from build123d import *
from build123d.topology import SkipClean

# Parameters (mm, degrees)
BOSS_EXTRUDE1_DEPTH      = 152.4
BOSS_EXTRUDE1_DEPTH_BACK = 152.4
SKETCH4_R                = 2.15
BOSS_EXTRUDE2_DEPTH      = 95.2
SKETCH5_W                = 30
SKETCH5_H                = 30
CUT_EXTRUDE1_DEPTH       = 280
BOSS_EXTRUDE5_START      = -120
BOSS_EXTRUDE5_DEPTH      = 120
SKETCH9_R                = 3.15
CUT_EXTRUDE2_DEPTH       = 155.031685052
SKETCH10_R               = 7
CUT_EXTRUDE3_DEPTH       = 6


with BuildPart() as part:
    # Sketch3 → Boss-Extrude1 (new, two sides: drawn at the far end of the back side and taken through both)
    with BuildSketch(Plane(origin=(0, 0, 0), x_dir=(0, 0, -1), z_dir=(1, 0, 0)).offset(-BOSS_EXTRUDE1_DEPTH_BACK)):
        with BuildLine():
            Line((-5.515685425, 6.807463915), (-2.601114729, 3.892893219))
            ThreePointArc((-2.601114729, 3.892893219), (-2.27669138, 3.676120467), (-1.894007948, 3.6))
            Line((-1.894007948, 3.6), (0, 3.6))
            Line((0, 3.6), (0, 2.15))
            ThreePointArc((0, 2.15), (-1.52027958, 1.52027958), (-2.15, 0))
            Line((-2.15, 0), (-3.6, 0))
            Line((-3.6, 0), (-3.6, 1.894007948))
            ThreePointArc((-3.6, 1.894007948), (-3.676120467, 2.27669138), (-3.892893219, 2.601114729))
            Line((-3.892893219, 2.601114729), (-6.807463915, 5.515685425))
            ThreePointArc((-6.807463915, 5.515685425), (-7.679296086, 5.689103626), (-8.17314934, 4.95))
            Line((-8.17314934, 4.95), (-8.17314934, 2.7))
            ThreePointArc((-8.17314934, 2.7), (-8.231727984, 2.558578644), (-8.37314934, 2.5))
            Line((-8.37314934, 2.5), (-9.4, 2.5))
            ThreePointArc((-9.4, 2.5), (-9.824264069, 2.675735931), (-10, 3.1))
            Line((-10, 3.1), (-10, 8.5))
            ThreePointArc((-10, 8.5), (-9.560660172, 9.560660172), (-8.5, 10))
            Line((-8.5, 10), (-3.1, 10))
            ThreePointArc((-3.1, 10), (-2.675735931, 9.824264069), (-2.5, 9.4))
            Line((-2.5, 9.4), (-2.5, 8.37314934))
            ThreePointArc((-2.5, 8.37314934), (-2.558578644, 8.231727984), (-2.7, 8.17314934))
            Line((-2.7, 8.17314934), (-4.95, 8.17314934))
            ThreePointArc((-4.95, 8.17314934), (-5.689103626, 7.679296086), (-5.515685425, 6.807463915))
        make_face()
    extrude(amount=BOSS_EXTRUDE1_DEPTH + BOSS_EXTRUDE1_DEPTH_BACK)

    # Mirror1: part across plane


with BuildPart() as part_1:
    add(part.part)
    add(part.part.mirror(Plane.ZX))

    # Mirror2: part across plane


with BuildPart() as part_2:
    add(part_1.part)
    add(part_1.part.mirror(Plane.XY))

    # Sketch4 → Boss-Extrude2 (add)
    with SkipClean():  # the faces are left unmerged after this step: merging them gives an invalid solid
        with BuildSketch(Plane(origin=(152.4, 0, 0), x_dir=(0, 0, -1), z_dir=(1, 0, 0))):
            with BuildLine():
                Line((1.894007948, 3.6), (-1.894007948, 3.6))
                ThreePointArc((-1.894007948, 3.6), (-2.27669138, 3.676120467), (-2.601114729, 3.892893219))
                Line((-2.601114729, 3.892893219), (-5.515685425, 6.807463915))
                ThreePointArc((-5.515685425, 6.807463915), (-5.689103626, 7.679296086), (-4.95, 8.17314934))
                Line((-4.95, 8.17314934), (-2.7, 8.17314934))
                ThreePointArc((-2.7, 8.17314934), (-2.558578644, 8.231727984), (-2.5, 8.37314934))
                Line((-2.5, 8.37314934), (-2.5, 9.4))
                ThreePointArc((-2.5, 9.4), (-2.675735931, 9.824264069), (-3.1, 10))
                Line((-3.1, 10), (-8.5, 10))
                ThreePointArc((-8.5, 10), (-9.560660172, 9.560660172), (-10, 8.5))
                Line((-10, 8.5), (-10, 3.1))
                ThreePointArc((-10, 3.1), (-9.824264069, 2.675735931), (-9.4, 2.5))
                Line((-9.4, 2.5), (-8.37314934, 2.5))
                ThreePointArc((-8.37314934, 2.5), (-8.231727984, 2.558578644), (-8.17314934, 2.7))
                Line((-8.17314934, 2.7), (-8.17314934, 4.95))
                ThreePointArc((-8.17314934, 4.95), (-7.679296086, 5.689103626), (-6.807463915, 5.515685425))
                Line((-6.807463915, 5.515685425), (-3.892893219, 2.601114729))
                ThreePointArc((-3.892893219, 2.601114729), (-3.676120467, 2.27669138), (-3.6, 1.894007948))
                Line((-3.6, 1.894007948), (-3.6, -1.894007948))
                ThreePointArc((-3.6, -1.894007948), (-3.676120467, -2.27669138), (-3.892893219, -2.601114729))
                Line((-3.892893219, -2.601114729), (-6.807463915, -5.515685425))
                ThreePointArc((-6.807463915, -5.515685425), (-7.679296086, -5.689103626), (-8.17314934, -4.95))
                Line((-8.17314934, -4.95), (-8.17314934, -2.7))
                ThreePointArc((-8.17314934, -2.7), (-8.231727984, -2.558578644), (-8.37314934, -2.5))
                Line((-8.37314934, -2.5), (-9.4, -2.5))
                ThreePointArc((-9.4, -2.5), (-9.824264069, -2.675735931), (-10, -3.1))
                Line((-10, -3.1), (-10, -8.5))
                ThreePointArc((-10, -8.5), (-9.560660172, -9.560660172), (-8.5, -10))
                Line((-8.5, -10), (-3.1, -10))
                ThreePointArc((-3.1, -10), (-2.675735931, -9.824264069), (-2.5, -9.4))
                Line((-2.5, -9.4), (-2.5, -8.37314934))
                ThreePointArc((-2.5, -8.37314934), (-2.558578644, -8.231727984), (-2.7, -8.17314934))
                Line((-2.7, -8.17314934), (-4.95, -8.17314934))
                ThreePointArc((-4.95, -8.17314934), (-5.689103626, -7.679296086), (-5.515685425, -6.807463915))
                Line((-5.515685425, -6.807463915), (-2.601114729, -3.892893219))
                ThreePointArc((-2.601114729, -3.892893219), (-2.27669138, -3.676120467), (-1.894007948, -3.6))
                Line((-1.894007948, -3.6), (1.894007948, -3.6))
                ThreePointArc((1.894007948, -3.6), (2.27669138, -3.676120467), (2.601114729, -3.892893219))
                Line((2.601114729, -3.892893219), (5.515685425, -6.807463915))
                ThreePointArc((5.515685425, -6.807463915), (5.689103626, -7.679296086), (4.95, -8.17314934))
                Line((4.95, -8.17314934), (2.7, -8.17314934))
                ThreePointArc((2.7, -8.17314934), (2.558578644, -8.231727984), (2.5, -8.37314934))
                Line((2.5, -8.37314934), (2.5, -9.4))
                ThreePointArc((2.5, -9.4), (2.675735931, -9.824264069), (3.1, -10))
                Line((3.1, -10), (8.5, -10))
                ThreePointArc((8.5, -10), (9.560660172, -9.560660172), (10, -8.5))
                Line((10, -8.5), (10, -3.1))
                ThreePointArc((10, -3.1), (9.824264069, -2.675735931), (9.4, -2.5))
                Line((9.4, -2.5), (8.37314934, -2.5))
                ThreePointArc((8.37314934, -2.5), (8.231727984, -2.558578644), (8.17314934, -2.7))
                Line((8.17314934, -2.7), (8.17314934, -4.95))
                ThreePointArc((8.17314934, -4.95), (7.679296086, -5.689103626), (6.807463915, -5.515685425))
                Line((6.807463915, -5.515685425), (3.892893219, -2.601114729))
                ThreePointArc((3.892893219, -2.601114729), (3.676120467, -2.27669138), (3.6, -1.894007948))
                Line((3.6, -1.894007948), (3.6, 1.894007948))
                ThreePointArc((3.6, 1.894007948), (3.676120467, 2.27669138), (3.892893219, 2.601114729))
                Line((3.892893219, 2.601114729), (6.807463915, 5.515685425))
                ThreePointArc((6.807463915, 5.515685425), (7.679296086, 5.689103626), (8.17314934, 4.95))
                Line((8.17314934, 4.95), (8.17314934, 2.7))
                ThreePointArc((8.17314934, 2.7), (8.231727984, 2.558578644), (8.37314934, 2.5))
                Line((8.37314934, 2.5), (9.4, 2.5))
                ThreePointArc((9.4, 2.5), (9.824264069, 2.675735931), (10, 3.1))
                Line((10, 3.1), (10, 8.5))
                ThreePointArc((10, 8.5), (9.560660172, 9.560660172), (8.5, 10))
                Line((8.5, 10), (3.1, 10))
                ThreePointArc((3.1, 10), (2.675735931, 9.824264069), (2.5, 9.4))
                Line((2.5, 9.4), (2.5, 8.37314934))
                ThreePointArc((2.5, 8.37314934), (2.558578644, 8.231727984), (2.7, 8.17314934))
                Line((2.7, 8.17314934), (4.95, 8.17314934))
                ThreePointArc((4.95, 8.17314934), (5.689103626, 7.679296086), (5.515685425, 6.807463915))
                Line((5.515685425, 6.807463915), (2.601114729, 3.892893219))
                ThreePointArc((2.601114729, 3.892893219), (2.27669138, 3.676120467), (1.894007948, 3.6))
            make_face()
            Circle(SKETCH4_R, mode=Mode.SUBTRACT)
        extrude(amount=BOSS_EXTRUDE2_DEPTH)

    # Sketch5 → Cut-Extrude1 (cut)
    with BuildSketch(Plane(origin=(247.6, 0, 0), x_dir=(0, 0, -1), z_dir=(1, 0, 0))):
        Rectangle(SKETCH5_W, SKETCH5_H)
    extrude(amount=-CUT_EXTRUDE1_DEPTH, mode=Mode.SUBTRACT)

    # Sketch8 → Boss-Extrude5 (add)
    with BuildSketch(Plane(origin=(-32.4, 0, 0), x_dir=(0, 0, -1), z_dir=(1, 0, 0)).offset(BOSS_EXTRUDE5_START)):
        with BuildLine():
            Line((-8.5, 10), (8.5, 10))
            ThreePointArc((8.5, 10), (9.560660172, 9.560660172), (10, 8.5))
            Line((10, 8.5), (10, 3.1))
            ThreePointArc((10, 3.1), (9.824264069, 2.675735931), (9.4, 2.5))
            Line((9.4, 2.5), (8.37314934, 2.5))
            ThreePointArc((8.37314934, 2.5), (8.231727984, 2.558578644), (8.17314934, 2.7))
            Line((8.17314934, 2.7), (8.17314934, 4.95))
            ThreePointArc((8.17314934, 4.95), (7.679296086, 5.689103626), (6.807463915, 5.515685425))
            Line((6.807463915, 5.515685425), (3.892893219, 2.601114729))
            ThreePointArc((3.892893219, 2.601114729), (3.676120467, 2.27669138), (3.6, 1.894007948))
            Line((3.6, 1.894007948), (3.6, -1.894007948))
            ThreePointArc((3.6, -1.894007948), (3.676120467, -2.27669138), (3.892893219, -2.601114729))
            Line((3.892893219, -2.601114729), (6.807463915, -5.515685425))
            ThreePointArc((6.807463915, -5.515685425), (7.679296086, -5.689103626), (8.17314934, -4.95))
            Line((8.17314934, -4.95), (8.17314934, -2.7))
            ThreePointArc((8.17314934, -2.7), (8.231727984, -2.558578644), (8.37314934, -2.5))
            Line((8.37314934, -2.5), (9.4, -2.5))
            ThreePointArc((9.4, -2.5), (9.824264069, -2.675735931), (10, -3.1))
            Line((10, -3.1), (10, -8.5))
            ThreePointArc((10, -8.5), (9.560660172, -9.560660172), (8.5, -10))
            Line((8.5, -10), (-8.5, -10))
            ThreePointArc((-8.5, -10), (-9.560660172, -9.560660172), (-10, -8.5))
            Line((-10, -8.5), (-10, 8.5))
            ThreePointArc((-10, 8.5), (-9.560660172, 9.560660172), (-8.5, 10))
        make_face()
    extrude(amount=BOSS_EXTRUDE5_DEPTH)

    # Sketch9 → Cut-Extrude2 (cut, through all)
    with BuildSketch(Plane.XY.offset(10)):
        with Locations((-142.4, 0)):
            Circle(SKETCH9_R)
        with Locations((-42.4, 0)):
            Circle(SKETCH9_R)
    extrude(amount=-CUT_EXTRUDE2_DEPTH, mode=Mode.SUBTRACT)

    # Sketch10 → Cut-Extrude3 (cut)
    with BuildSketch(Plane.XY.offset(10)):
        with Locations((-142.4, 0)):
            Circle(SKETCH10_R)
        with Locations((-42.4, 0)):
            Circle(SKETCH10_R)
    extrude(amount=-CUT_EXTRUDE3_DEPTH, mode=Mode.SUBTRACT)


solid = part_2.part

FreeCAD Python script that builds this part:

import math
import FreeCAD as App
import Part
import Sketcher

V = App.Vector

doc = App.newDocument("Part")
body = doc.addObject("PartDesign::Body", "Body")

# Sketch on YZ plane
sketch1 = doc.addObject("Sketcher::SketchObject", "Sketch")
body.addObject(sketch1)
sketch1.AttachmentSupport = (doc.YZ_Plane, [""])
sketch1.MapMode = "FlatFace"
sketch1.addGeometry(Part.LineSegment(V(3.89, 2.6, 0), V(6.81, 5.52, 0)), False)
sketch1.addGeometry(Part.ArcOfCircle(Part.Circle(V(7.37, 4.95, 0), V(0, 0, 1), 0.8), math.radians(0), math.radians(135)), False)
sketch1.addGeometry(Part.LineSegment(V(8.17, 4.95, 0), V(8.17, 2.7, 0)), False)
sketch1.addGeometry(Part.ArcOfCircle(Part.Circle(V(8.37, 2.7, 0), V(0, 0, 1), 0.2), math.radians(-180), math.radians(-90)), False)
sketch1.addGeometry(Part.LineSegment(V(8.37, 2.5, 0), V(9.4, 2.5, 0)), False)
sketch1.addGeometry(Part.ArcOfCircle(Part.Circle(V(9.4, 3.1, 0), V(0, 0, 1), 0.6), math.radians(-90), math.radians(0)), False)
sketch1.addGeometry(Part.LineSegment(V(10, 3.1, 0), V(10, 8.5, 0)), False)
sketch1.addGeometry(Part.ArcOfCircle(Part.Circle(V(8.5, 8.5, 0), V(0, 0, 1), 1.5), math.radians(0), math.radians(90)), False)
sketch1.addGeometry(Part.LineSegment(V(8.5, 10, 0), V(3.1, 10, 0)), False)
sketch1.addGeometry(Part.ArcOfCircle(Part.Circle(V(3.1, 9.4, 0), V(0, 0, 1), 0.6), math.radians(90), math.radians(180)), False)
sketch1.addGeometry(Part.LineSegment(V(2.5, 9.4, 0), V(2.5, 8.37, 0)), False)
sketch1.addGeometry(Part.ArcOfCircle(Part.Circle(V(2.7, 8.37, 0), V(0, 0, 1), 0.2), math.radians(-180), math.radians(-90)), False)
sketch1.addGeometry(Part.LineSegment(V(2.7, 8.17, 0), V(4.95, 8.17, 0)), False)
sketch1.addGeometry(Part.ArcOfCircle(Part.Circle(V(4.95, 7.37, 0), V(0, 0, 1), 0.8), math.radians(-45), math.radians(90)), False)
sketch1.addGeometry(Part.LineSegment(V(5.52, 6.81, 0), V(2.6, 3.89, 0)), False)
sketch1.addGeometry(Part.ArcOfCircle(Part.Circle(V(1.89, 4.6, 0), V(0, 0, 1), 1), math.radians(-90), math.radians(-45)), False)
sketch1.addGeometry(Part.LineSegment(V(1.89, 3.6, 0), V(0, 3.6, 0)), False)
sketch1.addGeometry(Part.LineSegment(V(0, 3.6, 0), V(0, 2.15, 0)), False)
sketch1.addGeometry(Part.ArcOfCircle(Part.Circle(V(0, 0, 0), V(0, 0, 1), 2.15), math.radians(0), math.radians(90)), False)
sketch1.addGeometry(Part.LineSegment(V(2.15, 0, 0), V(3.6, 0, 0)), False)
sketch1.addGeometry(Part.LineSegment(V(3.6, 0, 0), V(3.6, 1.89, 0)), False)
sketch1.addGeometry(Part.ArcOfCircle(Part.Circle(V(4.6, 1.89, 0), V(0, 0, 1), 1), math.radians(135), math.radians(180)), False)
sketch1.addConstraint(Sketcher.Constraint("Tangent", 0, 2, 1, 2))
sketch1.addConstraint(Sketcher.Constraint("Tangent", 1, 1, 2, 1))
sketch1.addConstraint(Sketcher.Constraint("Tangent", 2, 2, 3, 1))
sketch1.addConstraint(Sketcher.Constraint("Tangent", 3, 2, 4, 1))
sketch1.addConstraint(Sketcher.Constraint("Tangent", 4, 2, 5, 1))
sketch1.addConstraint(Sketcher.Constraint("Tangent", 5, 2, 6, 1))
sketch1.addConstraint(Sketcher.Constraint("Tangent", 6, 2, 7, 1))
sketch1.addConstraint(Sketcher.Constraint("Tangent", 7, 2, 8, 1))
sketch1.addConstraint(Sketcher.Constraint("Tangent", 8, 2, 9, 1))
sketch1.addConstraint(Sketcher.Constraint("Tangent", 9, 2, 10, 1))
sketch1.addConstraint(Sketcher.Constraint("Tangent", 10, 2, 11, 1))
sketch1.addConstraint(Sketcher.Constraint("Tangent", 11, 2, 12, 1))
sketch1.addConstraint(Sketcher.Constraint("Tangent", 12, 2, 13, 2))
sketch1.addConstraint(Sketcher.Constraint("Tangent", 13, 1, 14, 1))
sketch1.addConstraint(Sketcher.Constraint("Tangent", 14, 2, 15, 2))
sketch1.addConstraint(Sketcher.Constraint("Tangent", 15, 1, 16, 1))
sketch1.addConstraint(Sketcher.Constraint("Coincident", 16, 2, 17, 1))
sketch1.addConstraint(Sketcher.Constraint("Coincident", 17, 2, 18, 2))
sketch1.addConstraint(Sketcher.Constraint("Coincident", 18, 1, 19, 1))
sketch1.addConstraint(Sketcher.Constraint("Coincident", 19, 2, 20, 1))
sketch1.addConstraint(Sketcher.Constraint("Tangent", 20, 2, 21, 2))
sketch1.addConstraint(Sketcher.Constraint("Tangent", 21, 1, 0, 1))
sketch1.addConstraint(Sketcher.Constraint("Vertical", 2))
sketch1.addConstraint(Sketcher.Constraint("Horizontal", 4))
sketch1.addConstraint(Sketcher.Constraint("Vertical", 6))
sketch1.addConstraint(Sketcher.Constraint("Horizontal", 8))
sketch1.addConstraint(Sketcher.Constraint("Vertical", 10))
sketch1.addConstraint(Sketcher.Constraint("Horizontal", 12))
sketch1.addConstraint(Sketcher.Constraint("Horizontal", 16))
sketch1.addConstraint(Sketcher.Constraint("Vertical", 17))
sketch1.addConstraint(Sketcher.Constraint("Horizontal", 19))
sketch1.addConstraint(Sketcher.Constraint("Vertical", 20))
sketch1.addConstraint(Sketcher.Constraint("Coincident", 18, 3, -1, 1))
sketch1.addConstraint(Sketcher.Constraint("Equal", 5, 9))
sketch1.addConstraint(Sketcher.Constraint("Equal", 3, 11))
sketch1.addConstraint(Sketcher.Constraint("Equal", 1, 13))
sketch1.addConstraint(Sketcher.Constraint("Equal", 15, 21))
sketch1.addConstraint(Sketcher.Constraint("PointOnObject", 16, 2, -2))
sketch1.addConstraint(Sketcher.Constraint("PointOnObject", 18, 1, -1))
sketch1.addConstraint(Sketcher.Constraint("Parallel", 0, 14))
sketch1.addConstraint(Sketcher.Constraint("Equal", 12, 2))
sketch1.addConstraint(Sketcher.Constraint("Equal", 8, 6))
sketch1.addConstraint(Sketcher.Constraint("Equal", 4, 10))
sketch1.addConstraint(Sketcher.Constraint("Equal", 19, 17))
sketch1.addConstraint(Sketcher.Constraint("Equal", 16, 20))
sketch1.addConstraint(Sketcher.Constraint("Equal", 0, 14))
sketch1.addConstraint(Sketcher.Constraint("Radius", 15, 1.0))
sketch1.addConstraint(Sketcher.Constraint("Radius", 1, 0.8))
sketch1.addConstraint(Sketcher.Constraint("Radius", 3, 0.2))
sketch1.addConstraint(Sketcher.Constraint("Radius", 5, 0.6))
sketch1.addConstraint(Sketcher.Constraint("Radius", 7, 1.5))
sketch1.addConstraint(Sketcher.Constraint("Radius", 18, 2.15))
sketch1.addConstraint(Sketcher.Constraint("DistanceX", 8, 2, 8, 1, 5.4))
sketch1.addConstraint(Sketcher.Constraint("DistanceX", -1, 1, 5, 2, 10.0))
sketch1.addConstraint(Sketcher.Constraint("DistanceX", 12, 1, 12, 2, 2.25))
sketch1.addConstraint(Sketcher.Constraint("DistanceX", 19, 1, 19, 2, 1.45))
sketch1.addConstraint(Sketcher.Constraint("DistanceX", 4, 1, 4, 2, 1.026851))
pad1 = doc.addObject("PartDesign::Pad", "Pad")
body.addObject(pad1)
pad1.Profile = sketch1
pad1.Type = "TwoLengths"
pad1.Length = 152.4
pad1.Length2 = 152.4
body2 = doc.addObject("PartDesign::Body", "Body001")
doc.recompute()

body2.BaseFeature = body
doc.recompute()

mirroring = doc.addObject("Part::Mirroring", "Mirroring")
mirroring.Source = body
mirroring.Base = V(0, 0, 0)
mirroring.Normal = V(0, 1, 0)
body3 = doc.addObject("PartDesign::Body", "Body002")
body3.BaseFeature = mirroring
boolean = doc.addObject("PartDesign::Boolean", "Boolean")
body2.addObject(boolean)
boolean.Type = "Fuse"
boolean.addObjects([body3])
doc.recompute()
body4 = doc.addObject("PartDesign::Body", "Body003")
doc.recompute()

body4.BaseFeature = body2
doc.recompute()

mirroring2 = doc.addObject("Part::Mirroring", "Mirroring001")
mirroring2.Source = body2
mirroring2.Base = V(0, 0, 0)
mirroring2.Normal = V(0, 0, 1)
body5 = doc.addObject("PartDesign::Body", "Body004")
body5.BaseFeature = mirroring2
boolean2 = doc.addObject("PartDesign::Boolean", "Boolean001")
body4.addObject(boolean2)
boolean2.Type = "Fuse"
boolean2.addObjects([body5])
doc.recompute()

# Sketch on YZ plane
sketch2 = doc.addObject("Sketcher::SketchObject", "Sketch001")
body4.addObject(sketch2)
sketch2.AttachmentSupport = (doc.getObject("YZ_Plane003"), [""])
sketch2.MapMode = "FlatFace"
sketch2.AttachmentOffset = App.Placement(V(0, 0, 152.4), App.Rotation())
sketch2.addGeometry(Part.LineSegment(V(3.6, -1.89, 0), V(3.6, 1.89, 0)), False)
sketch2.addGeometry(Part.ArcOfCircle(Part.Circle(V(4.6, 1.89, 0), V(0, 0, 1), 1), math.radians(135), math.radians(180)), False)
sketch2.addGeometry(Part.LineSegment(V(3.89, 2.6, 0), V(6.81, 5.52, 0)), False)
sketch2.addGeometry(Part.ArcOfCircle(Part.Circle(V(7.37, 4.95, 0), V(0, 0, 1), 0.8), math.radians(0), math.radians(135)), False)
sketch2.addGeometry(Part.LineSegment(V(8.17, 4.95, 0), V(8.17, 2.7, 0)), False)
sketch2.addGeometry(Part.ArcOfCircle(Part.Circle(V(8.37, 2.7, 0), V(0, 0, 1), 0.2), math.radians(-180), math.radians(-90)), False)
sketch2.addGeometry(Part.LineSegment(V(8.37, 2.5, 0), V(9.4, 2.5, 0)), False)
sketch2.addGeometry(Part.ArcOfCircle(Part.Circle(V(9.4, 3.1, 0), V(0, 0, 1), 0.6), math.radians(-90), math.radians(0)), False)
sketch2.addGeometry(Part.LineSegment(V(10, 3.1, 0), V(10, 8.5, 0)), False)
sketch2.addGeometry(Part.ArcOfCircle(Part.Circle(V(8.5, 8.5, 0), V(0, 0, 1), 1.5), math.radians(0), math.radians(90)), False)
sketch2.addGeometry(Part.LineSegment(V(8.5, 10, 0), V(3.1, 10, 0)), False)
sketch2.addGeometry(Part.ArcOfCircle(Part.Circle(V(3.1, 9.4, 0), V(0, 0, 1), 0.6), math.radians(90), math.radians(180)), False)
sketch2.addGeometry(Part.LineSegment(V(2.5, 9.4, 0), V(2.5, 8.37, 0)), False)
sketch2.addGeometry(Part.ArcOfCircle(Part.Circle(V(2.7, 8.37, 0), V(0, 0, 1), 0.2), math.radians(-180), math.radians(-90)), False)
sketch2.addGeometry(Part.LineSegment(V(2.7, 8.17, 0), V(4.95, 8.17, 0)), False)
sketch2.addGeometry(Part.ArcOfCircle(Part.Circle(V(4.95, 7.37, 0), V(0, 0, 1), 0.8), math.radians(-45), math.radians(90)), False)
sketch2.addGeometry(Part.LineSegment(V(5.52, 6.81, 0), V(2.6, 3.89, 0)), False)
sketch2.addGeometry(Part.ArcOfCircle(Part.Circle(V(1.89, 4.6, 0), V(0, 0, 1), 1), math.radians(-90), math.radians(-45)), False)
sketch2.addGeometry(Part.LineSegment(V(1.89, 3.6, 0), V(-1.89, 3.6, 0)), False)
sketch2.addGeometry(Part.ArcOfCircle(Part.Circle(V(-1.89, 4.6, 0), V(0, 0, 1), 1), math.radians(-135), math.radians(-90)), False)
sketch2.addGeometry(Part.LineSegment(V(-2.6, 3.89, 0), V(-5.52, 6.81, 0)), False)
sketch2.addGeometry(Part.ArcOfCircle(Part.Circle(V(-4.95, 7.37, 0), V(0, 0, 1), 0.8), math.radians(90), math.radians(225)), False)
sketch2.addGeometry(Part.LineSegment(V(-4.95, 8.17, 0), V(-2.7, 8.17, 0)), False)
sketch2.addGeometry(Part.ArcOfCircle(Part.Circle(V(-2.7, 8.37, 0), V(0, 0, 1), 0.2), math.radians(-90), math.radians(0)), False)
sketch2.addGeometry(Part.LineSegment(V(-2.5, 8.37, 0), V(-2.5, 9.4, 0)), False)
sketch2.addGeometry(Part.ArcOfCircle(Part.Circle(V(-3.1, 9.4, 0), V(0, 0, 1), 0.6), math.radians(0), math.radians(90)), False)
sketch2.addGeometry(Part.LineSegment(V(-3.1, 10, 0), V(-8.5, 10, 0)), False)
sketch2.addGeometry(Part.ArcOfCircle(Part.Circle(V(-8.5, 8.5, 0), V(0, 0, 1), 1.5), math.radians(90), math.radians(180)), False)
sketch2.addGeometry(Part.LineSegment(V(-10, 8.5, 0), V(-10, 3.1, 0)), False)
sketch2.addGeometry(Part.ArcOfCircle(Part.Circle(V(-9.4, 3.1, 0), V(0, 0, 1), 0.6), math.radians(180), math.radians(270)), False)
sketch2.addGeometry(Part.LineSegment(V(-9.4, 2.5, 0), V(-8.37, 2.5, 0)), False)
sketch2.addGeometry(Part.ArcOfCircle(Part.Circle(V(-8.37, 2.7, 0), V(0, 0, 1), 0.2), math.radians(-90), math.radians(0)), False)
sketch2.addGeometry(Part.LineSegment(V(-8.17, 2.7, 0), V(-8.17, 4.95, 0)), False)
sketch2.addGeometry(Part.ArcOfCircle(Part.Circle(V(-7.37, 4.95, 0), V(0, 0, 1), 0.8), math.radians(45), math.radians(180)), False)
sketch2.addGeometry(Part.LineSegment(V(-6.81, 5.52, 0), V(-3.89, 2.6, 0)), False)
sketch2.addGeometry(Part.ArcOfCircle(Part.Circle(V(-4.6, 1.89, 0), V(0, 0, 1), 1), math.radians(0), math.radians(45)), False)
sketch2.addGeometry(Part.LineSegment(V(-3.6, 1.89, 0), V(-3.6, -1.89, 0)), False)
sketch2.addGeometry(Part.ArcOfCircle(Part.Circle(V(-4.6, -1.89, 0), V(0, 0, 1), 1), math.radians(-45), math.radians(0)), False)
sketch2.addGeometry(Part.LineSegment(V(-3.89, -2.6, 0), V(-6.81, -5.52, 0)), False)
sketch2.addGeometry(Part.ArcOfCircle(Part.Circle(V(-7.37, -4.95, 0), V(0, 0, 1), 0.8), math.radians(180), math.radians(315)), False)
sketch2.addGeometry(Part.LineSegment(V(-8.17, -4.95, 0), V(-8.17, -2.7, 0)), False)
sketch2.addGeometry(Part.ArcOfCircle(Part.Circle(V(-8.37, -2.7, 0), V(0, 0, 1), 0.2), math.radians(0), math.radians(90)), False)
sketch2.addGeometry(Part.LineSegment(V(-8.37, -2.5, 0), V(-9.4, -2.5, 0)), False)
sketch2.addGeometry(Part.ArcOfCircle(Part.Circle(V(-9.4, -3.1, 0), V(0, 0, 1), 0.6), math.radians(90), math.radians(180)), False)
sketch2.addGeometry(Part.LineSegment(V(-10, -3.1, 0), V(-10, -8.5, 0)), False)
sketch2.addGeometry(Part.ArcOfCircle(Part.Circle(V(-8.5, -8.5, 0), V(0, 0, 1), 1.5), math.radians(180), math.radians(270)), False)
sketch2.addGeometry(Part.LineSegment(V(-8.5, -10, 0), V(-3.1, -10, 0)), False)
sketch2.addGeometry(Part.ArcOfCircle(Part.Circle(V(-3.1, -9.4, 0), V(0, 0, 1), 0.6), math.radians(-90), math.radians(0)), False)
sketch2.addGeometry(Part.LineSegment(V(-2.5, -9.4, 0), V(-2.5, -8.37, 0)), False)
sketch2.addGeometry(Part.ArcOfCircle(Part.Circle(V(-2.7, -8.37, 0), V(0, 0, 1), 0.2), math.radians(0), math.radians(90)), False)
sketch2.addGeometry(Part.LineSegment(V(-2.7, -8.17, 0), V(-4.95, -8.17, 0)), False)
sketch2.addGeometry(Part.ArcOfCircle(Part.Circle(V(-4.95, -7.37, 0), V(0, 0, 1), 0.8), math.radians(135), math.radians(270)), False)
sketch2.addGeometry(Part.LineSegment(V(-5.52, -6.81, 0), V(-2.6, -3.89, 0)), False)
sketch2.addGeometry(Part.ArcOfCircle(Part.Circle(V(-1.89, -4.6, 0), V(0, 0, 1), 1), math.radians(90), math.radians(135)), False)
sketch2.addGeometry(Part.LineSegment(V(-1.89, -3.6, 0), V(1.89, -3.6, 0)), False)
sketch2.addGeometry(Part.ArcOfCircle(Part.Circle(V(1.89, -4.6, 0), V(0, 0, 1), 1), math.radians(45), math.radians(90)), False)
sketch2.addGeometry(Part.LineSegment(V(2.6, -3.89, 0), V(5.52, -6.81, 0)), False)
sketch2.addGeometry(Part.ArcOfCircle(Part.Circle(V(4.95, -7.37, 0), V(0, 0, 1), 0.8), math.radians(-90), math.radians(45)), False)
sketch2.addGeometry(Part.LineSegment(V(4.95, -8.17, 0), V(2.7, -8.17, 0)), False)
sketch2.addGeometry(Part.ArcOfCircle(Part.Circle(V(2.7, -8.37, 0), V(0, 0, 1), 0.2), math.radians(90), math.radians(180)), False)
sketch2.addGeometry(Part.LineSegment(V(2.5, -8.37, 0), V(2.5, -9.4, 0)), False)
sketch2.addGeometry(Part.ArcOfCircle(Part.Circle(V(3.1, -9.4, 0), V(0, 0, 1), 0.6), math.radians(180), math.radians(270)), False)
sketch2.addGeometry(Part.LineSegment(V(3.1, -10, 0), V(8.5, -10, 0)), False)
sketch2.addGeometry(Part.ArcOfCircle(Part.Circle(V(8.5, -8.5, 0), V(0, 0, 1), 1.5), math.radians(-90), math.radians(0)), False)
sketch2.addGeometry(Part.LineSegment(V(10, -8.5, 0), V(10, -3.1, 0)), False)
sketch2.addGeometry(Part.ArcOfCircle(Part.Circle(V(9.4, -3.1, 0), V(0, 0, 1), 0.6), math.radians(0), math.radians(90)), False)
sketch2.addGeometry(Part.LineSegment(V(9.4, -2.5, 0), V(8.37, -2.5, 0)), False)
sketch2.addGeometry(Part.ArcOfCircle(Part.Circle(V(8.37, -2.7, 0), V(0, 0, 1), 0.2), math.radians(90), math.radians(180)), False)
sketch2.addGeometry(Part.LineSegment(V(8.17, -2.7, 0), V(8.17, -4.95, 0)), False)
sketch2.addGeometry(Part.ArcOfCircle(Part.Circle(V(7.37, -4.95, 0), V(0, 0, 1), 0.8), math.radians(-135), math.radians(0)), False)
sketch2.addGeometry(Part.LineSegment(V(6.81, -5.52, 0), V(3.89, -2.6, 0)), False)
sketch2.addGeometry(Part.ArcOfCircle(Part.Circle(V(4.6, -1.89, 0), V(0, 0, 1), 1), math.radians(180), math.radians(225)), False)
sketch2.addGeometry(Part.Circle(V(0, 0, 0), V(0, 0, 1), 2.15), False)
sketch2.addConstraint(Sketcher.Constraint("Tangent", 0, 2, 1, 2))
sketch2.addConstraint(Sketcher.Constraint("Tangent", 1, 1, 2, 1))
sketch2.addConstraint(Sketcher.Constraint("Tangent", 2, 2, 3, 2))
sketch2.addConstraint(Sketcher.Constraint("Tangent", 3, 1, 4, 1))
sketch2.addConstraint(Sketcher.Constraint("Tangent", 4, 2, 5, 1))
sketch2.addConstraint(Sketcher.Constraint("Tangent", 5, 2, 6, 1))
sketch2.addConstraint(Sketcher.Constraint("Tangent", 6, 2, 7, 1))
sketch2.addConstraint(Sketcher.Constraint("Tangent", 7, 2, 8, 1))
sketch2.addConstraint(Sketcher.Constraint("Tangent", 8, 2, 9, 1))
sketch2.addConstraint(Sketcher.Constraint("Tangent", 9, 2, 10, 1))
sketch2.addConstraint(Sketcher.Constraint("Tangent", 10, 2, 11, 1))
sketch2.addConstraint(Sketcher.Constraint("Tangent", 11, 2, 12, 1))
sketch2.addConstraint(Sketcher.Constraint("Tangent", 12, 2, 13, 1))
sketch2.addConstraint(Sketcher.Constraint("Tangent", 13, 2, 14, 1))
sketch2.addConstraint(Sketcher.Constraint("Tangent", 14, 2, 15, 2))
sketch2.addConstraint(Sketcher.Constraint("Tangent", 15, 1, 16, 1))
sketch2.addConstraint(Sketcher.Constraint("Tangent", 16, 2, 17, 2))
sketch2.addConstraint(Sketcher.Constraint("Tangent", 17, 1, 18, 1))
sketch2.addConstraint(Sketcher.Constraint("Tangent", 18, 2, 19, 2))
sketch2.addConstraint(Sketcher.Constraint("Tangent", 19, 1, 20, 1))
sketch2.addConstraint(Sketcher.Constraint("Tangent", 20, 2, 21, 2))
sketch2.addConstraint(Sketcher.Constraint("Tangent", 21, 1, 22, 1))
sketch2.addConstraint(Sketcher.Constraint("Tangent", 22, 2, 23, 1))
sketch2.addConstraint(Sketcher.Constraint("Tangent", 23, 2, 24, 1))
sketch2.addConstraint(Sketcher.Constraint("Tangent", 24, 2, 25, 1))
sketch2.addConstraint(Sketcher.Constraint("Tangent", 25, 2, 26, 1))
sketch2.addConstraint(Sketcher.Constraint("Tangent", 26, 2, 27, 1))
sketch2.addConstraint(Sketcher.Constraint("Tangent", 27, 2, 28, 1))
sketch2.addConstraint(Sketcher.Constraint("Tangent", 28, 2, 29, 1))
sketch2.addConstraint(Sketcher.Constraint("Tangent", 29, 2, 30, 1))
sketch2.addConstraint(Sketcher.Constraint("Tangent", 30, 2, 31, 1))
sketch2.addConstraint(Sketcher.Constraint("Tangent", 31, 2, 32, 1))
sketch2.addConstraint(Sketcher.Constraint("Tangent", 32, 2, 33, 2))
sketch2.addConstraint(Sketcher.Constraint("Tangent", 33, 1, 34, 1))
sketch2.addConstraint(Sketcher.Constraint("Tangent", 34, 2, 35, 2))
sketch2.addConstraint(Sketcher.Constraint("Tangent", 35, 1, 36, 1))
sketch2.addConstraint(Sketcher.Constraint("Tangent", 36, 2, 37, 2))
sketch2.addConstraint(Sketcher.Constraint("Tangent", 37, 1, 38, 1))
sketch2.addConstraint(Sketcher.Constraint("Tangent", 38, 2, 39, 2))
sketch2.addConstraint(Sketcher.Constraint("Tangent", 39, 1, 40, 1))
sketch2.addConstraint(Sketcher.Constraint("Tangent", 40, 2, 41, 1))
sketch2.addConstraint(Sketcher.Constraint("Tangent", 41, 2, 42, 1))
sketch2.addConstraint(Sketcher.Constraint("Tangent", 42, 2, 43, 1))
sketch2.addConstraint(Sketcher.Constraint("Tangent", 43, 2, 44, 1))
sketch2.addConstraint(Sketcher.Constraint("Tangent", 44, 2, 45, 1))
sketch2.addConstraint(Sketcher.Constraint("Tangent", 45, 2, 46, 1))
sketch2.addConstraint(Sketcher.Constraint("Tangent", 46, 2, 47, 1))
sketch2.addConstraint(Sketcher.Constraint("Tangent", 47, 2, 48, 1))
sketch2.addConstraint(Sketcher.Constraint("Tangent", 48, 2, 49, 1))
sketch2.addConstraint(Sketcher.Constraint("Tangent", 49, 2, 50, 1))
sketch2.addConstraint(Sketcher.Constraint("Tangent", 50, 2, 51, 2))
sketch2.addConstraint(Sketcher.Constraint("Tangent", 51, 1, 52, 1))
sketch2.addConstraint(Sketcher.Constraint("Tangent", 52, 2, 53, 2))
sketch2.addConstraint(Sketcher.Constraint("Tangent", 53, 1, 54, 1))
sketch2.addConstraint(Sketcher.Constraint("Tangent", 54, 2, 55, 2))
sketch2.addConstraint(Sketcher.Constraint("Tangent", 55, 1, 56, 1))
sketch2.addConstraint(Sketcher.Constraint("Tangent", 56, 2, 57, 2))
sketch2.addConstraint(Sketcher.Constraint("Tangent", 57, 1, 58, 1))
sketch2.addConstraint(Sketcher.Constraint("Tangent", 58, 2, 59, 1))
sketch2.addConstraint(Sketcher.Constraint("Tangent", 59, 2, 60, 1))
sketch2.addConstraint(Sketcher.Constraint("Tangent", 60, 2, 61, 1))
sketch2.addConstraint(Sketcher.Constraint("Tangent", 61, 2, 62, 1))
sketch2.addConstraint(Sketcher.Constraint("Tangent", 62, 2, 63, 1))
sketch2.addConstraint(Sketcher.Constraint("Tangent", 63, 2, 64, 1))
sketch2.addConstraint(Sketcher.Constraint("Tangent", 64, 2, 65, 1))
sketch2.addConstraint(Sketcher.Constraint("Tangent", 65, 2, 66, 1))
sketch2.addConstraint(Sketcher.Constraint("Tangent", 66, 2, 67, 1))
sketch2.addConstraint(Sketcher.Constraint("Tangent", 67, 2, 68, 1))
sketch2.addConstraint(Sketcher.Constraint("Tangent", 68, 2, 69, 2))
sketch2.addConstraint(Sketcher.Constraint("Tangent", 69, 1, 70, 1))
sketch2.addConstraint(Sketcher.Constraint("Tangent", 70, 2, 71, 2))
sketch2.addConstraint(Sketcher.Constraint("Tangent", 71, 1, 0, 1))
sketch2.addConstraint(Sketcher.Constraint("Vertical", 0))
sketch2.addConstraint(Sketcher.Constraint("Vertical", 4))
sketch2.addConstraint(Sketcher.Constraint("Horizontal", 6))
sketch2.addConstraint(Sketcher.Constraint("Vertical", 8))
sketch2.addConstraint(Sketcher.Constraint("Horizontal", 10))
sketch2.addConstraint(Sketcher.Constraint("Vertical", 12))
sketch2.addConstraint(Sketcher.Constraint("Horizontal", 14))
sketch2.addConstraint(Sketcher.Constraint("Horizontal", 18))
sketch2.addConstraint(Sketcher.Constraint("Horizontal", 22))
sketch2.addConstraint(Sketcher.Constraint("Vertical", 24))
sketch2.addConstraint(Sketcher.Constraint("Horizontal", 26))
sketch2.addConstraint(Sketcher.Constraint("Vertical", 28))
sketch2.addConstraint(Sketcher.Constraint("Horizontal", 30))
sketch2.addConstraint(Sketcher.Constraint("Vertical", 32))
sketch2.addConstraint(Sketcher.Constraint("Vertical", 36))
sketch2.addConstraint(Sketcher.Constraint("Vertical", 40))
sketch2.addConstraint(Sketcher.Constraint("Horizontal", 42))
sketch2.addConstraint(Sketcher.Constraint("Vertical", 44))
sketch2.addConstraint(Sketcher.Constraint("Horizontal", 46))
sketch2.addConstraint(Sketcher.Constraint("Vertical", 48))
sketch2.addConstraint(Sketcher.Constraint("Horizontal", 50))
sketch2.addConstraint(Sketcher.Constraint("Horizontal", 54))
sketch2.addConstraint(Sketcher.Constraint("Horizontal", 58))
sketch2.addConstraint(Sketcher.Constraint("Vertical", 60))
sketch2.addConstraint(Sketcher.Constraint("Horizontal", 62))
sketch2.addConstraint(Sketcher.Constraint("Vertical", 64))
sketch2.addConstraint(Sketcher.Constraint("Horizontal", 66))
sketch2.addConstraint(Sketcher.Constraint("Vertical", 68))
sketch2.addConstraint(Sketcher.Constraint("Coincident", 72, 3, -1, 1))
sketch2.addConstraint(Sketcher.Constraint("Equal", 7, 11))
sketch2.addConstraint(Sketcher.Constraint("Equal", 5, 13))
sketch2.addConstraint(Sketcher.Constraint("Equal", 3, 15))
sketch2.addConstraint(Sketcher.Constraint("Equal", 1, 17))
sketch2.addConstraint(Sketcher.Constraint("Equal", 17, 19))
sketch2.addConstraint(Sketcher.Constraint("Equal", 15, 21))
sketch2.addConstraint(Sketcher.Constraint("Equal", 13, 23))
sketch2.addConstraint(Sketcher.Constraint("Equal", 11, 25))
sketch2.addConstraint(Sketcher.Constraint("Equal", 9, 27))
sketch2.addConstraint(Sketcher.Constraint("Equal", 25, 29))
sketch2.addConstraint(Sketcher.Constraint("Equal", 23, 31))
sketch2.addConstraint(Sketcher.Constraint("Equal", 21, 33))
sketch2.addConstraint(Sketcher.Constraint("Equal", 19, 35))
sketch2.addConstraint(Sketcher.Constraint("Equal", 35, 37))
sketch2.addConstraint(Sketcher.Constraint("Equal", 33, 39))
sketch2.addConstraint(Sketcher.Constraint("Equal", 31, 41))
sketch2.addConstraint(Sketcher.Constraint("Equal", 29, 43))
sketch2.addConstraint(Sketcher.Constraint("Equal", 27, 45))
sketch2.addConstraint(Sketcher.Constraint("Equal", 43, 47))
sketch2.addConstraint(Sketcher.Constraint("Equal", 41, 49))
sketch2.addConstraint(Sketcher.Constraint("Equal", 39, 51))
sketch2.addConstraint(Sketcher.Constraint("Equal", 37, 53))
sketch2.addConstraint(Sketcher.Constraint("Equal", 53, 55))
sketch2.addConstraint(Sketcher.Constraint("Equal", 51, 57))
sketch2.addConstraint(Sketcher.Constraint("Equal", 49, 59))
sketch2.addConstraint(Sketcher.Constraint("Equal", 47, 61))
sketch2.addConstraint(Sketcher.Constraint("Equal", 45, 63))
sketch2.addConstraint(Sketcher.Constraint("Equal", 61, 65))
sketch2.addConstraint(Sketcher.Constraint("Equal", 59, 67))
sketch2.addConstraint(Sketcher.Constraint("Equal", 57, 69))
sketch2.addConstraint(Sketcher.Constraint("Equal", 55, 71))
sketch2.addConstraint(Sketcher.Constraint("Symmetric", 1, 3, 37, 3, -1, 1))
sketch2.addConstraint(Sketcher.Constraint("Symmetric", 3, 3, 39, 3, -1, 1))
sketch2.addConstraint(Sketcher.Constraint("Symmetric", 7, 3, 43, 3, -1, 1))
sketch2.addConstraint(Sketcher.Constraint("Symmetric", 11, 3, 47, 3, -1, 1))
sketch2.addConstraint(Sketcher.Constraint("Symmetric", 15, 3, 51, 3, -1, 1))
sketch2.addConstraint(Sketcher.Constraint("Symmetric", 17, 3, 53, 3, -1, 1))
sketch2.addConstraint(Sketcher.Constraint("Symmetric", 21, 3, 57, 3, -1, 1))
sketch2.addConstraint(Sketcher.Constraint("Symmetric", 25, 3, 61, 3, -1, 1))
sketch2.addConstraint(Sketcher.Constraint("Symmetric", 29, 3, 65, 3, -1, 1))
sketch2.addConstraint(Sketcher.Constraint("Symmetric", 33, 3, 69, 3, -1, 1))
sketch2.addConstraint(Sketcher.Constraint("Symmetric", 15, 3, 21, 3, -2))
sketch2.addConstraint(Sketcher.Constraint("Symmetric", 11, 3, 25, 3, -2))
sketch2.addConstraint(Sketcher.Constraint("Symmetric", 7, 3, 29, 3, -2))
sketch2.addConstraint(Sketcher.Constraint("Symmetric", 3, 3, 33, 3, -2))
sketch2.addConstraint(Sketcher.Constraint("Parallel", 2, 16))
sketch2.addConstraint(Sketcher.Constraint("Perpendicular", 16, 20))
sketch2.addConstraint(Sketcher.Constraint("Parallel", 20, 34))
sketch2.addConstraint(Sketcher.Constraint("Perpendicular", 52, 56))
sketch2.addConstraint(Sketcher.Constraint("Parallel", 56, 70))
sketch2.addConstraint(Sketcher.Constraint("Horizontal", 1, 3, 35, 3))
sketch2.addConstraint(Sketcher.Constraint("Equal", 54, 0))
sketch2.addConstraint(Sketcher.Constraint("Equal", 58, 4))
sketch2.addConstraint(Sketcher.Constraint("Equal", 62, 8))
sketch2.addConstraint(Sketcher.Constraint("Equal", 66, 12))
sketch2.addConstraint(Sketcher.Constraint("Equal", 2, 16))
sketch2.addConstraint(Sketcher.Constraint("Radius", 1, 1.0))
sketch2.addConstraint(Sketcher.Constraint("Diameter", 72, 4.3))
sketch2.addConstraint(Sketcher.Constraint("Radius", 3, 0.8))
sketch2.addConstraint(Sketcher.Constraint("Radius", 5, 0.2))
sketch2.addConstraint(Sketcher.Constraint("Radius", 7, 0.6))
sketch2.addConstraint(Sketcher.Constraint("Radius", 9, 1.5))
sketch2.addConstraint(Sketcher.Constraint("DistanceX", 10, 2, 10, 1, 5.4))
sketch2.addConstraint(Sketcher.Constraint("DistanceX", -1, 1, 7, 2, 10.0))
sketch2.addConstraint(Sketcher.Constraint("DistanceX", 14, 1, 14, 2, 2.25))
sketch2.addConstraint(Sketcher.Constraint("DistanceX", -1, 1, 1, 3, 4.6))
sketch2.addConstraint(Sketcher.Constraint("DistanceX", 6, 1, 6, 2, 1.026851))
pad2 = doc.addObject("PartDesign::Pad", "Pad001")
body4.addObject(pad2)
pad2.Profile = sketch2
pad2.Length = 95.2

# Sketch on YZ plane
sketch3 = doc.addObject("Sketcher::SketchObject", "Sketch002")
body4.addObject(sketch3)
sketch3.AttachmentSupport = (doc.getObject("YZ_Plane003"), [""])
sketch3.MapMode = "FlatFace"
sketch3.AttachmentOffset = App.Placement(V(0, 0, 247.6), App.Rotation())
sketch3.addGeometry(Part.LineSegment(V(15, 15, 0), V(-15, 15, 0)), False)
sketch3.addGeometry(Part.LineSegment(V(-15, 15, 0), V(-15, -15, 0)), False)
sketch3.addGeometry(Part.LineSegment(V(-15, -15, 0), V(15, -15, 0)), False)
sketch3.addGeometry(Part.LineSegment(V(15, -15, 0), V(15, 15, 0)), False)
sketch3.addConstraint(Sketcher.Constraint("Coincident", 0, 2, 1, 1))
sketch3.addConstraint(Sketcher.Constraint("Coincident", 1, 2, 2, 1))
sketch3.addConstraint(Sketcher.Constraint("Coincident", 2, 2, 3, 1))
sketch3.addConstraint(Sketcher.Constraint("Coincident", 3, 2, 0, 1))
sketch3.addConstraint(Sketcher.Constraint("Horizontal", 0))
sketch3.addConstraint(Sketcher.Constraint("Vertical", 1))
sketch3.addConstraint(Sketcher.Constraint("Horizontal", 2))
sketch3.addConstraint(Sketcher.Constraint("Vertical", 3))
sketch3.addConstraint(Sketcher.Constraint("Symmetric", 0, 2, 2, 2, -1, 1))
sketch3.addConstraint(Sketcher.Constraint("Equal", 2, 1))
sketch3.addConstraint(Sketcher.Constraint("DistanceX", 0, 2, 0, 1, 30.0))
pocket1 = doc.addObject("PartDesign::Pocket", "Pocket")
body4.addObject(pocket1)
pocket1.Profile = sketch3
pocket1.Length = 280

# Sketch on YZ plane
sketch4 = doc.addObject("Sketcher::SketchObject", "Sketch003")
body4.addObject(sketch4)
sketch4.AttachmentSupport = (doc.getObject("YZ_Plane003"), [""])
sketch4.MapMode = "FlatFace"
sketch4.AttachmentOffset = App.Placement(V(0, 0, -152.4), App.Rotation())
sketch4.addGeometry(Part.LineSegment(V(10, -8.5, 0), V(10, 8.5, 0)), False)
sketch4.addGeometry(Part.ArcOfCircle(Part.Circle(V(8.5, 8.5, 0), V(0, 0, 1), 1.5), math.radians(0), math.radians(90)), False)
sketch4.addGeometry(Part.LineSegment(V(8.5, 10, 0), V(-8.5, 10, 0)), False)
sketch4.addGeometry(Part.ArcOfCircle(Part.Circle(V(-8.5, 8.5, 0), V(0, 0, 1), 1.5), math.radians(90), math.radians(180)), False)
sketch4.addGeometry(Part.LineSegment(V(-10, 8.5, 0), V(-10, -8.5, 0)), False)
sketch4.addGeometry(Part.ArcOfCircle(Part.Circle(V(-8.5, -8.5, 0), V(0, 0, 1), 1.5), math.radians(180), math.radians(270)), False)
sketch4.addGeometry(Part.LineSegment(V(-8.5, -10, 0), V(-3.1, -10, 0)), False)
sketch4.addGeometry(Part.ArcOfCircle(Part.Circle(V(-3.1, -9.4, 0), V(0, 0, 1), 0.6), math.radians(-90), math.radians(0)), False)
sketch4.addGeometry(Part.LineSegment(V(-2.5, -9.4, 0), V(-2.5, -8.37, 0)), False)
sketch4.addGeometry(Part.ArcOfCircle(Part.Circle(V(-2.7, -8.37, 0), V(0, 0, 1), 0.2), math.radians(0), math.radians(90)), False)
sketch4.addGeometry(Part.LineSegment(V(-2.7, -8.17, 0), V(-4.95, -8.17, 0)), False)
sketch4.addGeometry(Part.ArcOfCircle(Part.Circle(V(-4.95, -7.37, 0), V(0, 0, 1), 0.8), math.radians(135), math.radians(270)), False)
sketch4.addGeometry(Part.LineSegment(V(-5.52, -6.81, 0), V(-2.6, -3.89, 0)), False)
sketch4.addGeometry(Part.ArcOfCircle(Part.Circle(V(-1.89, -4.6, 0), V(0, 0, 1), 1), math.radians(90), math.radians(135)), False)
sketch4.addGeometry(Part.LineSegment(V(-1.89, -3.6, 0), V(1.89, -3.6, 0)), False)
sketch4.addGeometry(Part.ArcOfCircle(Part.Circle(V(1.89, -4.6, 0), V(0, 0, 1), 1), math.radians(45), math.radians(90)), False)
sketch4.addGeometry(Part.LineSegment(V(2.6, -3.89, 0), V(5.52, -6.81, 0)), False)
sketch4.addGeometry(Part.ArcOfCircle(Part.Circle(V(4.95, -7.37, 0), V(0, 0, 1), 0.8), math.radians(-90), math.radians(45)), False)
sketch4.addGeometry(Part.LineSegment(V(4.95, -8.17, 0), V(2.7, -8.17, 0)), False)
sketch4.addGeometry(Part.ArcOfCircle(Part.Circle(V(2.7, -8.37, 0), V(0, 0, 1), 0.2), math.radians(90), math.radians(180)), False)
sketch4.addGeometry(Part.LineSegment(V(2.5, -8.37, 0), V(2.5, -9.4, 0)), False)
sketch4.addGeometry(Part.ArcOfCircle(Part.Circle(V(3.1, -9.4, 0), V(0, 0, 1), 0.6), math.radians(180), math.radians(270)), False)
sketch4.addGeometry(Part.LineSegment(V(3.1, -10, 0), V(8.5, -10, 0)), False)
sketch4.addGeometry(Part.ArcOfCircle(Part.Circle(V(8.5, -8.5, 0), V(0, 0, 1), 1.5), math.radians(-90), math.radians(0)), False)
sketch4.addConstraint(Sketcher.Constraint("Tangent", 0, 2, 1, 1))
sketch4.addConstraint(Sketcher.Constraint("Tangent", 1, 2, 2, 1))
sketch4.addConstraint(Sketcher.Constraint("Tangent", 2, 2, 3, 1))
sketch4.addConstraint(Sketcher.Constraint("Tangent", 3, 2, 4, 1))
sketch4.addConstraint(Sketcher.Constraint("Tangent", 4, 2, 5, 1))
sketch4.addConstraint(Sketcher.Constraint("Tangent", 5, 2, 6, 1))
sketch4.addConstraint(Sketcher.Constraint("Tangent", 6, 2, 7, 1))
sketch4.addConstraint(Sketcher.Constraint("Tangent", 7, 2, 8, 1))
sketch4.addConstraint(Sketcher.Constraint("Tangent", 8, 2, 9, 1))
sketch4.addConstraint(Sketcher.Constraint("Tangent", 9, 2, 10, 1))
sketch4.addConstraint(Sketcher.Constraint("Tangent", 10, 2, 11, 2))
sketch4.addConstraint(Sketcher.Constraint("Tangent", 11, 1, 12, 1))
sketch4.addConstraint(Sketcher.Constraint("Tangent", 12, 2, 13, 2))
sketch4.addConstraint(Sketcher.Constraint("Tangent", 13, 1, 14, 1))
sketch4.addConstraint(Sketcher.Constraint("Tangent", 14, 2, 15, 2))
sketch4.addConstraint(Sketcher.Constraint("Tangent", 15, 1, 16, 1))
sketch4.addConstraint(Sketcher.Constraint("Tangent", 16, 2, 17, 2))
sketch4.addConstraint(Sketcher.Constraint("Tangent", 17, 1, 18, 1))
sketch4.addConstraint(Sketcher.Constraint("Tangent", 18, 2, 19, 1))
sketch4.addConstraint(Sketcher.Constraint("Tangent", 19, 2, 20, 1))
sketch4.addConstraint(Sketcher.Constraint("Tangent", 20, 2, 21, 1))
sketch4.addConstraint(Sketcher.Constraint("Tangent", 21, 2, 22, 1))
sketch4.addConstraint(Sketcher.Constraint("Tangent", 22, 2, 23, 1))
sketch4.addConstraint(Sketcher.Constraint("Tangent", 23, 2, 0, 1))
sketch4.addConstraint(Sketcher.Constraint("Vertical", 0))
sketch4.addConstraint(Sketcher.Constraint("Horizontal", 2))
sketch4.addConstraint(Sketcher.Constraint("Vertical", 4))
sketch4.addConstraint(Sketcher.Constraint("Horizontal", 6))
sketch4.addConstraint(Sketcher.Constraint("Vertical", 8))
sketch4.addConstraint(Sketcher.Constraint("Horizontal", 10))
sketch4.addConstraint(Sketcher.Constraint("Horizontal", 14))
sketch4.addConstraint(Sketcher.Constraint("Horizontal", 18))
sketch4.addConstraint(Sketcher.Constraint("Vertical", 20))
sketch4.addConstraint(Sketcher.Constraint("Horizontal", 22))
sketch4.addConstraint(Sketcher.Constraint("Equal", 1, 3))
sketch4.addConstraint(Sketcher.Constraint("Equal", 3, 5))
sketch4.addConstraint(Sketcher.Constraint("Equal", 13, 15))
sketch4.addConstraint(Sketcher.Constraint("Equal", 11, 17))
sketch4.addConstraint(Sketcher.Constraint("Equal", 9, 19))
sketch4.addConstraint(Sketcher.Constraint("Equal", 7, 21))
sketch4.addConstraint(Sketcher.Constraint("Equal", 5, 23))
sketch4.addConstraint(Sketcher.Constraint("Symmetric", 1, 3, 5, 3, -1, 1))
sketch4.addConstraint(Sketcher.Constraint("Symmetric", 11, 3, 17, 3, -2))
sketch4.addConstraint(Sketcher.Constraint("Symmetric", 7, 3, 21, 3, -2))
sketch4.addConstraint(Sketcher.Constraint("Perpendicular", 12, 16))
sketch4.addConstraint(Sketcher.Constraint("Horizontal", 12, 2, 15, 1))
sketch4.addConstraint(Sketcher.Constraint("Equal", 2, 0))
sketch4.addConstraint(Sketcher.Constraint("Radius", 13, 1.0))
sketch4.addConstraint(Sketcher.Constraint("Radius", 1, 1.5))
sketch4.addConstraint(Sketcher.Constraint("Radius", 7, 0.6))
sketch4.addConstraint(Sketcher.Constraint("Radius", 9, 0.2))
sketch4.addConstraint(Sketcher.Constraint("Radius", 11, 0.8))
sketch4.addConstraint(Sketcher.Constraint("DistanceX", 2, 2, 2, 1, 17.0))
sketch4.addConstraint(Sketcher.Constraint("DistanceX", 6, 1, 6, 2, 5.4))
sketch4.addConstraint(Sketcher.Constraint("DistanceX", 10, 2, 10, 1, 2.25))
sketch4.addConstraint(Sketcher.Constraint("DistanceY", 13, 3, -1, 1, 4.6))
sketch4.addConstraint(Sketcher.Constraint("DistanceY", 8, 1, 8, 2, 1.026851))
pad3 = doc.addObject("PartDesign::Pad", "Pad002")
body4.addObject(pad3)
pad3.Profile = sketch4
pad3.Length = 120

# Sketch on XY plane
sketch5 = doc.addObject("Sketcher::SketchObject", "Sketch004")
body4.addObject(sketch5)
sketch5.AttachmentSupport = (doc.getObject("XY_Plane003"), [""])
sketch5.MapMode = "FlatFace"
sketch5.AttachmentOffset = App.Placement(V(0, 0, 10), App.Rotation())
sketch5.addGeometry(Part.Circle(V(-142.4, 0, 0), V(0, 0, 1), 3.1), False)
sketch5.addGeometry(Part.Circle(V(-42.4, 0, 0), V(0, 0, 1), 3.1), False)
sketch5.addConstraint(Sketcher.Constraint("Equal", 0, 1))
sketch5.addConstraint(Sketcher.Constraint("PointOnObject", 0, 3, -1))
sketch5.addConstraint(Sketcher.Constraint("PointOnObject", 1, 3, -1))
sketch5.addConstraint(Sketcher.Constraint("Diameter", 0, 6.3))
sketch5.addConstraint(Sketcher.Constraint("DistanceX", 0, 3, 1, 3, 100.0))
sketch5.addConstraint(Sketcher.Constraint("DistanceX", 0, 3, -1, 1, 142.4))
pocket2 = doc.addObject("PartDesign::Pocket", "Pocket001")
body4.addObject(pocket2)
pocket2.Profile = sketch5
pocket2.Type = "ThroughAll"

# Sketch on XY plane
sketch6 = doc.addObject("Sketcher::SketchObject", "Sketch005")
body4.addObject(sketch6)
sketch6.AttachmentSupport = (doc.getObject("XY_Plane003"), [""])
sketch6.MapMode = "FlatFace"
sketch6.AttachmentOffset = App.Placement(V(0, 0, 10), App.Rotation())
sketch6.addGeometry(Part.Circle(V(-142, 0, 0), V(0, 0, 1), 7), False)
sketch6.addGeometry(Part.Circle(V(-42, 0, 0), V(0, 0, 1), 7), False)
sketch6.addConstraint(Sketcher.Constraint("Equal", 0, 1))
sketch6.addConstraint(Sketcher.Constraint("PointOnObject", 0, 3, -1))
sketch6.addConstraint(Sketcher.Constraint("PointOnObject", 1, 3, -1))
sketch6.addConstraint(Sketcher.Constraint("Diameter", 0, 14.0))
sketch6.addConstraint(Sketcher.Constraint("DistanceX", 0, 3, 1, 3, 100.0))
sketch6.addConstraint(Sketcher.Constraint("DistanceX", 0, 3, -1, 1, 142.4))
pocket3 = doc.addObject("PartDesign::Pocket", "Pocket002")
body4.addObject(pocket3)
pocket3.Profile = sketch6
pocket3.Length = 6
mirroring.Visibility = False
mirroring2.Visibility = False

doc.recompute()
